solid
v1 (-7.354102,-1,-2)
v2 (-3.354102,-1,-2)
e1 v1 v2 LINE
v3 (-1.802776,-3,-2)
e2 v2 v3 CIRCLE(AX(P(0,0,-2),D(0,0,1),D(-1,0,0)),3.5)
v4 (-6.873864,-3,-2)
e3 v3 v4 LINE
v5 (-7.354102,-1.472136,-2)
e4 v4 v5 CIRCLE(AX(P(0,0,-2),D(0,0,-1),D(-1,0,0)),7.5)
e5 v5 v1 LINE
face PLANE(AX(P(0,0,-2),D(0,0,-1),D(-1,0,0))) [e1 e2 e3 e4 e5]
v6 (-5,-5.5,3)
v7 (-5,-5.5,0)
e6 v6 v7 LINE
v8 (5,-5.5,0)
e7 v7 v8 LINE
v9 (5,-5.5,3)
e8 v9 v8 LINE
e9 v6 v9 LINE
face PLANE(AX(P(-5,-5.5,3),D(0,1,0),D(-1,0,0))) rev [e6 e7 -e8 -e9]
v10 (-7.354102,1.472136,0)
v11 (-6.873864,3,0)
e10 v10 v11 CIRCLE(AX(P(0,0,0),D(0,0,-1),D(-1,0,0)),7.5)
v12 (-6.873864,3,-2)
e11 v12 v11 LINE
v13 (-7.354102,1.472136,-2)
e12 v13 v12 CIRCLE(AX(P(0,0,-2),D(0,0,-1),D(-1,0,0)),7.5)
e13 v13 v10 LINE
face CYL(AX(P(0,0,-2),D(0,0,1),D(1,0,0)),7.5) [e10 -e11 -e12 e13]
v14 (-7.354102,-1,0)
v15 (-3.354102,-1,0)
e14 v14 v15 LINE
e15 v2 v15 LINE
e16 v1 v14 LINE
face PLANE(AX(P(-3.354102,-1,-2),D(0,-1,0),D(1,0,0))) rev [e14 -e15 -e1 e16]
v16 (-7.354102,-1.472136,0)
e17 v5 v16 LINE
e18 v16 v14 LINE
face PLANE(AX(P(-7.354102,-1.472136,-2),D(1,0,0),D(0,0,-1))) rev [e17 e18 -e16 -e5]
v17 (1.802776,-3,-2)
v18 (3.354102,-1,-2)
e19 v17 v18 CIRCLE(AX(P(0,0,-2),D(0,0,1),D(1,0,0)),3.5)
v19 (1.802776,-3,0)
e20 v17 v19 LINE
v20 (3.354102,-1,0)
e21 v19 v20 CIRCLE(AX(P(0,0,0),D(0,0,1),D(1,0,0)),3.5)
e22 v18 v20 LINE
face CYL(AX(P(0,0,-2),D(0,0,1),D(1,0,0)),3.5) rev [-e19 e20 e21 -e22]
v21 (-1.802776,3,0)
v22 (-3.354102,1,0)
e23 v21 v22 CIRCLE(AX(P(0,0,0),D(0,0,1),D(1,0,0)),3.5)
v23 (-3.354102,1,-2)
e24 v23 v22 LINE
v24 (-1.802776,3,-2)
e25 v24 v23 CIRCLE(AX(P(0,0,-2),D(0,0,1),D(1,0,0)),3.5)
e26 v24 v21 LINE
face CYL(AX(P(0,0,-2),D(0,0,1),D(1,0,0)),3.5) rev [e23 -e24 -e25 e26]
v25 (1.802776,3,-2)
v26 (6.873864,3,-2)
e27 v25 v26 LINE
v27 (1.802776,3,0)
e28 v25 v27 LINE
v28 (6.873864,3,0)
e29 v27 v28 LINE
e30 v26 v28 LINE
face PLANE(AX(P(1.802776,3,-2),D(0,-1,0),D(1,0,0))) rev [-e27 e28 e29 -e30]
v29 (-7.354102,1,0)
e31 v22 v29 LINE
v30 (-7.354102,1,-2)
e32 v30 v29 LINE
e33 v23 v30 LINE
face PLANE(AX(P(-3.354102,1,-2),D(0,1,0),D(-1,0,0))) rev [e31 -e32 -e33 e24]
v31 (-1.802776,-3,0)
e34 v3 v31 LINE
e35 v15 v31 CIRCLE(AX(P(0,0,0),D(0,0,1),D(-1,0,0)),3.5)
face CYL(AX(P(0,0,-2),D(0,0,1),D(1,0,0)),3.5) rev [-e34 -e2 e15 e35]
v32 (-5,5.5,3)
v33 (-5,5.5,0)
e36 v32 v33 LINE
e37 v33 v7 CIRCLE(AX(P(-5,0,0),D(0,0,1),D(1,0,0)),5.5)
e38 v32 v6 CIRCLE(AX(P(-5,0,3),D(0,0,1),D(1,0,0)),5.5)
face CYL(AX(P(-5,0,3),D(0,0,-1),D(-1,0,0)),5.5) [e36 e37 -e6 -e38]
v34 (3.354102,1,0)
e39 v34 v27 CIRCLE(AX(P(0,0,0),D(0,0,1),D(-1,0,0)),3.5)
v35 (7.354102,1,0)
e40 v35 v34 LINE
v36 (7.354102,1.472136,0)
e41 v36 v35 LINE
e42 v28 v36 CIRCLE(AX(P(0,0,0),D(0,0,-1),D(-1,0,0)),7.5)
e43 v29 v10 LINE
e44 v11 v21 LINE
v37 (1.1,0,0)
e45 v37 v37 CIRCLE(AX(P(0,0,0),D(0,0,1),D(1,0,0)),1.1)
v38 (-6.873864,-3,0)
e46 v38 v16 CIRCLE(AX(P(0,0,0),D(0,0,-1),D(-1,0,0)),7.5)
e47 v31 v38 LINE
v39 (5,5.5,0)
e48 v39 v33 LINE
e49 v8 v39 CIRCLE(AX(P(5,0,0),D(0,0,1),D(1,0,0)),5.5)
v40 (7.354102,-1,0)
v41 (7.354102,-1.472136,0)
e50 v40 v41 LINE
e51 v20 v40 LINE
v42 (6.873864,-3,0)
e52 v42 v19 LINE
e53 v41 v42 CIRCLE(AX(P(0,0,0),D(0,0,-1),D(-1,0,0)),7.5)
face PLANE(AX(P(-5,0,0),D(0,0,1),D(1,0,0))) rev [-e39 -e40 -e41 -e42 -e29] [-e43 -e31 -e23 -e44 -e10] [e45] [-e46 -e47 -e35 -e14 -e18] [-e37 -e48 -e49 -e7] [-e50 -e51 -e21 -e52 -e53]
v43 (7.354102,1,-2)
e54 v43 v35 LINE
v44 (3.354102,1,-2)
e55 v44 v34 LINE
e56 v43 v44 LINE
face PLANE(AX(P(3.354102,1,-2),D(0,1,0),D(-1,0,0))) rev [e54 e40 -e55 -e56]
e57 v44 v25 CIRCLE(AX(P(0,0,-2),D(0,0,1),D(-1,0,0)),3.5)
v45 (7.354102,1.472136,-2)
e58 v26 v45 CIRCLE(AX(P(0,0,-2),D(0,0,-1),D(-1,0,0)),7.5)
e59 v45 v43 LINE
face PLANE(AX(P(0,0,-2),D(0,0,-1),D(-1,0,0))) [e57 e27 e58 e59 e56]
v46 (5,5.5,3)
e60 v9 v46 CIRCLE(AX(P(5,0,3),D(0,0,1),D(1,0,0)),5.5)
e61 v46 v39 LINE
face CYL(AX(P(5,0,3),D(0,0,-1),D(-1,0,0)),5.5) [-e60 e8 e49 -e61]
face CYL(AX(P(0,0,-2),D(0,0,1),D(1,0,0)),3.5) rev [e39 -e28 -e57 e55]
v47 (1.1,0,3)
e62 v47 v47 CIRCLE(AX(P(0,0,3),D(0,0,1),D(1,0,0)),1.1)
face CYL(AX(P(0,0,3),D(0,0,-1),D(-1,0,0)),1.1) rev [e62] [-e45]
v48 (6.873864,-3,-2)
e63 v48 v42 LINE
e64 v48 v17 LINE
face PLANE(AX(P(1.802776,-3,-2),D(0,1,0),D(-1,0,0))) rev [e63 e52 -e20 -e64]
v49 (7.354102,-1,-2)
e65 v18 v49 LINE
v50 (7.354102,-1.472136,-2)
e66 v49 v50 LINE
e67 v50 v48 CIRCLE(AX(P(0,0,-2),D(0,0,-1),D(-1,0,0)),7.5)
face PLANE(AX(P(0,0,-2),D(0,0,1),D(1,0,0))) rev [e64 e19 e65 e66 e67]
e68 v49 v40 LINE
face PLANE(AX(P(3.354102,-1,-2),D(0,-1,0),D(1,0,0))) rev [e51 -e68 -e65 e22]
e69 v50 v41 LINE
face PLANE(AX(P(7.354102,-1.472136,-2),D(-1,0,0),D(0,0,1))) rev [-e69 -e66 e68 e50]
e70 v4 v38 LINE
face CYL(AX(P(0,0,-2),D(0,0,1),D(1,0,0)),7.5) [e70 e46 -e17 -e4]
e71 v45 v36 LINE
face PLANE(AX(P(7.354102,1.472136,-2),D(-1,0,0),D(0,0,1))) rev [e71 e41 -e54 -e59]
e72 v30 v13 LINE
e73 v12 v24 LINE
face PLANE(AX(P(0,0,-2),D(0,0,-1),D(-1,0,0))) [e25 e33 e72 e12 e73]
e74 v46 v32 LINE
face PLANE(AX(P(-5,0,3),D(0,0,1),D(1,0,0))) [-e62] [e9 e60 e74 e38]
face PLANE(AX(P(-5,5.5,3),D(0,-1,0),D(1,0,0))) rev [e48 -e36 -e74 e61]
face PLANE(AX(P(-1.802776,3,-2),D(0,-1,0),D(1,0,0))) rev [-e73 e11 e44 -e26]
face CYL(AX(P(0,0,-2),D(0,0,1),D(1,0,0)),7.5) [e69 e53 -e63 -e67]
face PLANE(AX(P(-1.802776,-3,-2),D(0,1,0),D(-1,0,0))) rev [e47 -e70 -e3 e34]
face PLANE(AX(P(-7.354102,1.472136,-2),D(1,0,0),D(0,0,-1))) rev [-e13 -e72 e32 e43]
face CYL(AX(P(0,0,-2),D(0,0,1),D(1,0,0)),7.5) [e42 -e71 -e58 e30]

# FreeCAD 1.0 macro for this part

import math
import FreeCAD as App
import Part
import Sketcher
from FreeCAD import Vector
Q = App.Units.Quantity

doc = App.newDocument("Part")
params = doc.addObject("Spreadsheet::Sheet", "Params")
for row, (alias, value) in enumerate([
    ("sketch1_diameter", "2.2 mm"),
    ("sketch1_radius", "5.5 mm"),
    ("sketch1_width", "10 mm"),
    ("pad1_length", "3 mm"),
    ("sketch2_radius", "7.5 mm"),
    ("sketch2_radius2", "3.5 mm"),
    ("sketch2_width", "4 mm"),
    ("pad2_length", "2 mm"),
], start=1):
    params.set(f"A{row}", alias)
    params.set(f"B{row}", "=" + value)
    params.setAlias(f"B{row}", alias)

body = doc.addObject("PartDesign::Body", "Body")

# Sketch on XY plane
sketch1 = doc.addObject("Sketcher::SketchObject", "Sketch")
body.addObject(sketch1)
sketch1.AttachmentSupport = (doc.XY_Plane, [""])
sketch1.MapMode = "FlatFace"
sketch1.addGeometry(Part.LineSegment(Vector(5, 5.5, 0), Vector(-5, 5.5, 0)), False)
sketch1.addGeometry(Part.ArcOfCircle(Part.Circle(Vector(-5, 0, 0), Vector(0, 0, 1), 5.5), math.radians(90), math.radians(270)), False)
sketch1.addGeometry(Part.LineSegment(Vector(-5, -5.5, 0), Vector(5, -5.5, 0)), False)
sketch1.addGeometry(Part.ArcOfCircle(Part.Circle(Vector(5, 0, 0), Vector(0, 0, 1), 5.5), math.radians(-90), math.radians(90)), False)
sketch1.addGeometry(Part.Circle(Vector(0, 0, 0), Vector(0, 0, 1), 1.1), False)
sketch1.addConstraint(Sketcher.Constraint("Tangent", 0, 2, 1, 1))
sketch1.addConstraint(Sketcher.Constraint("Tangent", 1, 2, 2, 1))
sketch1.addConstraint(Sketcher.Constraint("Tangent", 2, 2, 3, 1))
sketch1.addConstraint(Sketcher.Constraint("Tangent", 3, 2, 0, 1))
sketch1.addConstraint(Sketcher.Constraint("Horizontal", 0))
sketch1.addConstraint(Sketcher.Constraint("Horizontal", 2))
sketch1.addConstraint(Sketcher.Constraint("Coincident", 4, 3, -1, 1))
sketch1.addConstraint(Sketcher.Constraint("Symmetric", 1, 3, 3, 3, -1, 1))
sketch1.addConstraint(Sketcher.Constraint("Diameter", 4, Q("2.2 mm")))
sketch1.addConstraint(Sketcher.Constraint("Radius", 1, Q("5.5 mm")))
sketch1.addConstraint(Sketcher.Constraint("DistanceX", 0, 2, 0, 1, Q("10 mm")))
sketch1.setExpression("Constraints[8]", "Params.sketch1_diameter")
sketch1.setExpression("Constraints[9]", "Params.sketch1_radius")
sketch1.setExpression("Constraints[10]", "Params.sketch1_width")
pad1 = doc.addObject("PartDesign::Pad", "Pad")
body.addObject(pad1)
pad1.Profile = sketch1
pad1.setExpression("Length", "Params.pad1_length")

# Sketch on XY plane
sketch2 = doc.addObject("Sketcher::SketchObject", "Sketch001")
body.addObject(sketch2)
sketch2.AttachmentSupport = (doc.XY_Plane, [""])
sketch2.MapMode = "FlatFace"
sketch2.addGeometry(Part.LineSegment(Vector(1.802776, 3, 0), Vector(6.873864, 3, 0)), False)
sketch2.addGeometry(Part.ArcOfCircle(Part.Circle(Vector(0, 0, 0), Vector(0, 0, 1), 7.5), math.radians(11.319787), math.radians(23.578178)), False)
sketch2.addGeometry(Part.LineSegment(Vector(7.354102, 1.472136, 0), Vector(7.354102, 1, 0)), False)
sketch2.addGeometry(Part.LineSegment(Vector(7.354102, 1, 0), Vector(3.354102, 1, 0)), False)
sketch2.addGeometry(Part.ArcOfCircle(Part.Circle(Vector(0, 0, 0), Vector(0, 0, 1), 3.5), math.radians(16.60155), math.radians(58.997281)), False)
sketch2.addGeometry(Part.LineSegment(Vector(7.354102, -1, 0), Vector(7.354102, -1.472136, 0)), False)
sketch2.addGeometry(Part.ArcOfCircle(Part.Circle(Vector(0, 0, 0), Vector(0, 0, 1), 7.5), math.radians(-23.578178), math.radians(-11.319787)), False)
sketch2.addGeometry(Part.LineSegment(Vector(6.873864, -3, 0), Vector(1.802776, -3, 0)), False)
sketch2.addGeometry(Part.ArcOfCircle(Part.Circle(Vector(0, 0, 0), Vector(0, 0, 1), 3.5), math.radians(-58.997281), math.radians(-16.60155)), False)
sketch2.addGeometry(Part.LineSegment(Vector(3.354102, -1, 0), Vector(7.354102, -1, 0)), False)
sketch2.addGeometry(Part.LineSegment(Vector(-1.802776, -3, 0), Vector(-6.873864, -3, 0)), False)
sketch2.addGeometry(Part.ArcOfCircle(Part.Circle(Vector(0, 0, 0), Vector(0, 0, 1), 7.5), math.radians(-168.680213), math.radians(-156.421822)), False)
sketch2.addGeometry(Part.LineSegment(Vector(-7.354102, -1.472136, 0), Vector(-7.354102, -1, 0)), False)
sketch2.addGeometry(Part.LineSegment(Vector(-7.354102, -1, 0), Vector(-3.354102, -1, 0)), False)
sketch2.addGeometry(Part.ArcOfCircle(Part.Circle(Vector(0, 0, 0), Vector(0, 0, 1), 3.5), math.radians(-163.39845), math.radians(-121.002719)), False)
sketch2.addGeometry(Part.LineSegment(Vector(-7.354102, 1, 0), Vector(-7.354102, 1.472136, 0)), False)
sketch2.addGeometry(Part.ArcOfCircle(Part.Circle(Vector(0, 0, 0), Vector(0, 0, 1), 7.5), math.radians(156.421822), math.radians(168.680213)), False)
sketch2.addGeometry(Part.LineSegment(Vector(-6.873864, 3, 0), Vector(-1.802776, 3, 0)), False)
sketch2.addGeometry(Part.ArcOfCircle(Part.Circle(Vector(0, 0, 0), Vector(0, 0, 1), 3.5), math.radians(121.002719), math.radians(163.39845)), False)
sketch2.addGeometry(Part.LineSegment(Vector(-3.354102, 1, 0), Vector(-7.354102, 1, 0)), False)
sketch2.addConstraint(Sketcher.Constraint("Coincident", 0, 2, 1, 2))
sketch2.addConstraint(Sketcher.Constraint("Coincident", 1, 1, 2, 1))
sketch2.addConstraint(Sketcher.Constraint("Coincident", 2, 2, 3, 1))
sketch2.addConstraint(Sketcher.Constraint("Coincident", 3, 2, 4, 1))
sketch2.addConstraint(Sketcher.Constraint("Coincident", 4, 2, 0, 1))
sketch2.addConstraint(Sketcher.Constraint("Coincident", 5, 2, 6, 2))
sketch2.addConstraint(Sketcher.Constraint("Coincident", 6, 1, 7, 1))
sketch2.addConstraint(Sketcher.Constraint("Coincident", 7, 2, 8, 1))
sketch2.addConstraint(Sketcher.Constraint("Coincident", 8, 2, 9, 1))
sketch2.addConstraint(Sketcher.Constraint("Coincident", 9, 2, 5, 1))
sketch2.addConstraint(Sketcher.Constraint("Coincident", 10, 2, 11, 2))
sketch2.addConstraint(Sketcher.Constraint("Coincident", 11, 1, 12, 1))
sketch2.addConstraint(Sketcher.Constraint("Coincident", 12, 2, 13, 1))
sketch2.addConstraint(Sketcher.Constraint("Coincident", 13, 2, 14, 1))
sketch2.addConstraint(Sketcher.Constraint("Coincident", 14, 2, 10, 1))
sketch2.addConstraint(Sketcher.Constraint("Coincident", 15, 2, 16, 2))
sketch2.addConstraint(Sketcher.Constraint("Coincident", 16, 1, 17, 1))
sketch2.addConstraint(Sketcher.Constraint("Coincident", 17, 2, 18, 1))
sketch2.addConstraint(Sketcher.Constraint("Coincident", 18, 2, 19, 1))
sketch2.addConstraint(Sketcher.Constraint("Coincident", 19, 2, 15, 1))
sketch2.addConstraint(Sketcher.Constraint("Horizontal", 0))
sketch2.addConstraint(Sketcher.Constraint("Vertical", 2))
sketch2.addConstraint(Sketcher.Constraint("Horizontal", 3))
sketch2.addConstraint(Sketcher.Constraint("Vertical", 5))
sketch2.addConstraint(Sketcher.Constraint("Horizontal", 7))
sketch2.addConstraint(Sketcher.Constraint("Horizontal", 9))
sketch2.addConstraint(Sketcher.Constraint("Horizontal", 10))
sketch2.addConstraint(Sketcher.Constraint("Vertical", 12))
sketch2.addConstraint(Sketcher.Constraint("Horizontal", 13))
sketch2.addConstraint(Sketcher.Constraint("Vertical", 15))
sketch2.addConstraint(Sketcher.Constraint("Horizontal", 17))
sketch2.addConstraint(Sketcher.Constraint("Horizontal", 19))
sketch2.addConstraint(Sketcher.Constraint("Coincident", 1, 3, -1, 1))
sketch2.addConstraint(Sketcher.Constraint("Coincident", 4, 3, -1, 1))
sketch2.addConstraint(Sketcher.Constraint("Coincident", 6, 3, -1, 1))
sketch2.addConstraint(Sketcher.Constraint("Coincident", 8, 3, -1, 1))
sketch2.addConstraint(Sketcher.Constraint("Coincident", 11, 3, -1, 1))
sketch2.addConstraint(Sketcher.Constraint("Coincident", 14, 3, -1, 1))
sketch2.addConstraint(Sketcher.Constraint("Coincident", 16, 3, -1, 1))
sketch2.addConstraint(Sketcher.Constraint("Coincident", 18, 3, -1, 1))
sketch2.addConstraint(Sketcher.Constraint("Equal", 1, 6))
sketch2.addConstraint(Sketcher.Constraint("Equal", 4, 8))
sketch2.addConstraint(Sketcher.Constraint("Equal", 6, 11))
sketch2.addConstraint(Sketcher.Constraint("Equal", 8, 14))
sketch2.addConstraint(Sketcher.Constraint("Equal", 11, 16))
sketch2.addConstraint(Sketcher.Constraint("Equal", 14, 18))
sketch2.addConstraint(Sketcher.Constraint("Symmetric", 2, 2, 12, 2, -1, 1))
sketch2.addConstraint(Sketcher.Constraint("Symmetric", 9, 2, 19, 2, -1, 1))
sketch2.addConstraint(Sketcher.Constraint("Symmetric", 9, 2, 12, 2, -2))
sketch2.addConstraint(Sketcher.Constraint("Horizontal", 7, 2, 10, 2))
sketch2.addConstraint(Sketcher.Constraint("Horizontal", 4, 2, 16, 1))
sketch2.addConstraint(Sketcher.Constraint("Vertical", 0, 2, 6, 1))
sketch2.addConstraint(Sketcher.Constraint("Radius", 1, Q("7.5 mm")))
sketch2.addConstraint(Sketcher.Constraint("Radius", 4, Q("3.5 mm")))
sketch2.addConstraint(Sketcher.Constraint("DistanceX", 3, 2, 3, 1, Q("4 mm")))
sketch2.addConstraint(Sketcher.Constraint("DistanceY", -1, 1, 0, 2, Q("3 mm")))
sketch2.addConstraint(Sketcher.Constraint("DistanceY", -1, 1, 2, 2, Q("1 mm")))
sketch2.setExpression("Constraints[52]", "Params.sketch2_radius")
sketch2.setExpression("Constraints[53]", "Params.sketch2_radius2")
sketch2.setExpression("Constraints[54]", "Params.sketch2_width")
pad2 = doc.addObject("PartDesign::Pad", "Pad001")
body.addObject(pad2)
pad2.Profile = sketch2
pad2.setExpression("Length", "Params.pad2_length")
pad2.Reversed = True

doc.recompute()
